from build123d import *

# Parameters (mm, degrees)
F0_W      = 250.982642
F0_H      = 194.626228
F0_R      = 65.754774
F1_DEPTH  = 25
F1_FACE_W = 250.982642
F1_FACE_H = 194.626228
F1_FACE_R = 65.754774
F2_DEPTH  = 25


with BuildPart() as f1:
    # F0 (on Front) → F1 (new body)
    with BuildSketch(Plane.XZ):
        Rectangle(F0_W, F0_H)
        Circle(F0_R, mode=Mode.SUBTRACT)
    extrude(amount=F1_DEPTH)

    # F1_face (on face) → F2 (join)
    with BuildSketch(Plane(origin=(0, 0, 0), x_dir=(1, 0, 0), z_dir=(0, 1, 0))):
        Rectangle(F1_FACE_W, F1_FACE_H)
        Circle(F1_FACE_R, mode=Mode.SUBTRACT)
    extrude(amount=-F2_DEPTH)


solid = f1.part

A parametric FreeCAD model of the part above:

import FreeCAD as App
import Part
import Sketcher

doc = App.newDocument("Part")
body = doc.addObject("PartDesign::Body", "Body")

sketch1 = doc.addObject("Sketcher::SketchObject", "Sketch")
body.addObject(sketch1)
sketch1.AttachmentSupport = (doc.XZ_Plane, [""])
sketch1.MapMode = "FlatFace"
sketch1.addGeometry([
    Part.LineSegment(App.Vector(-125.491321, 97.313114, 0), App.Vector(-125.491321, -97.313114, 0)),
    Part.LineSegment(App.Vector(-125.491321, -97.313114, 0), App.Vector(125.491321, -97.313114, 0)),
    Part.LineSegment(App.Vector(125.491321, -97.313114, 0), App.Vector(125.491321, 97.313114, 0)),
    Part.LineSegment(App.Vector(125.491321, 97.313114, 0), App.Vector(-125.491321, 97.313114, 0)),
    Part.Circle(App.Vector(0, 0, 0), App.Vector(0, 0, 1), 65.754774),
], False)
sketch1.addConstraint([
    Sketcher.Constraint("Coincident", 0, 2, 1, 1),
    Sketcher.Constraint("Coincident", 1, 2, 2, 1),
    Sketcher.Constraint("Coincident", 2, 2, 3, 1),
    Sketcher.Constraint("Coincident", 3, 2, 0, 1),
    Sketcher.Constraint("Vertical", 0),
    Sketcher.Constraint("Horizontal", 1),
    Sketcher.Constraint("Vertical", 2),
    Sketcher.Constraint("Horizontal", 3),
    Sketcher.Constraint("Coincident", 4, 3, -1, 1),
    Sketcher.Constraint("Symmetric", 0, 2, 2, 2, -1, 1),
    Sketcher.Constraint("Diameter", 4, 131.509548),
    Sketcher.Constraint("DistanceX", 1, 1, 1, 2, 250.982642),
    Sketcher.Constraint("DistanceY", 0, 2, 0, 1, 194.626228),
])
pad1 = doc.addObject("PartDesign::Pad", "Pad")
body.addObject(pad1)
pad1.Profile = sketch1
pad1.Length = 25

sketch2 = doc.addObject("Sketcher::SketchObject", "Sketch001")
body.addObject(sketch2)
sketch2.AttachmentSupport = (doc.XZ_Plane, [""])
sketch2.MapMode = "FlatFace"
sketch2.addGeometry([
    Part.LineSegment(App.Vector(-125.491321, -97.313114, 0), App.Vector(-125.491321, 97.313114, 0)),
    Part.LineSegment(App.Vector(-125.491321, 97.313114, 0), App.Vector(125.491321, 97.313114, 0)),
    Part.LineSegment(App.Vector(125.491321, 97.313114, 0), App.Vector(125.491321, -97.313114, 0)),
    Part.LineSegment(App.Vector(125.491321, -97.313114, 0), App.Vector(-125.491321, -97.313114, 0)),
    Part.Circle(App.Vector(0, 0, 0), App.Vector(0, 0, 1), 65.754774),
], False)
sketch2.addConstraint([
    Sketcher.Constraint("Coincident", 0, 2, 1, 1),
    Sketcher.Constraint("Coincident", 1, 2, 2, 1),
    Sketcher.Constraint("Coincident", 2, 2, 3, 1),
    Sketcher.Constraint("Coincident", 3, 2, 0, 1),
    Sketcher.Constraint("Vertical", 0),
    Sketcher.Constraint("Horizontal", 1),
    Sketcher.Constraint("Vertical", 2),
    Sketcher.Constraint("Horizontal", 3),
    Sketcher.Constraint("Coincident", 4, 3, -1, 1),
    Sketcher.Constraint("Symmetric", 0, 2, 2, 2, -1, 1),
    Sketcher.Constraint("Diameter", 4, 131.509548),
    Sketcher.Constraint("DistanceX", 1, 1, 1, 2, 250.982642),
    Sketcher.Constraint("DistanceY", 0, 1, 0, 2, 194.626228),
])
pad2 = doc.addObject("PartDesign::Pad", "Pad001")
body.addObject(pad2)
pad2.Profile = sketch2
pad2.Length = 25

doc.recompute()
